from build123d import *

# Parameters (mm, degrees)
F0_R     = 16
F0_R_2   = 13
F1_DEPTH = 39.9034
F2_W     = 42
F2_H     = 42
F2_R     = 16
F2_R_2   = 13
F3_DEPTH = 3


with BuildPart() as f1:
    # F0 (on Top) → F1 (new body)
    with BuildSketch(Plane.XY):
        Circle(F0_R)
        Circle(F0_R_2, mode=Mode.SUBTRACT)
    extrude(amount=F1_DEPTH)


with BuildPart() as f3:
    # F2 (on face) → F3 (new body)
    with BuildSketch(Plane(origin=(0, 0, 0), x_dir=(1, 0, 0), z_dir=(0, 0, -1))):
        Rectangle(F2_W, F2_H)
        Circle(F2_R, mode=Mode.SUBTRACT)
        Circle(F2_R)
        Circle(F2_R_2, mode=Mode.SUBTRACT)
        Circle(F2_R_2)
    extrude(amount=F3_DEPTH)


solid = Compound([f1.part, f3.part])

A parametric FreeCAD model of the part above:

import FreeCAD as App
import Part
import Sketcher

V = App.Vector


def add_polygon(sketch, points):
    """Adds a closed chain of lines whose ends are joined by coincident constraints."""
    first, n = sketch.GeometryCount, len(points)
    for a, b in zip(points, points[1:] + points[:1]):
        sketch.addGeometry(Part.LineSegment(App.Vector(*a, 0), App.Vector(*b, 0)), False)
    for i in range(n):
        sketch.addConstraint(Sketcher.Constraint("Coincident", first + i, 2, first + (i + 1) % n, 1))

doc = App.newDocument("Part")
params = doc.addObject("Spreadsheet::Sheet", "Params")
for row, (alias, value) in enumerate([
    ("sketch1_diameter", "32 mm"),
    ("sketch1_diameter2", "26 mm"),
    ("pad1_length", "39.9034 mm"),
    ("sketch2_width", "42 mm"),
    ("pad2_length", "3 mm"),
], start=1):
    params.set(f"A{row}", alias)
    params.set(f"B{row}", "=" + value)
    params.setAlias(f"B{row}", alias)

body = doc.addObject("PartDesign::Body", "Body")

sketch1 = body.newObject("Sketcher::SketchObject", "Sketch")
sketch1.AttachmentSupport = (doc.getObject("XY_Plane"), [""])
sketch1.MapMode = "FlatFace"
sketch1.addGeometry([
    Part.Circle(V(0, 0, 0), V(0, 0, 1), 16),
    Part.Circle(V(0, 0, 0), V(0, 0, 1), 13),
], False)
sketch1.addConstraint([
    Sketcher.Constraint("Coincident", 0, 3, -1, 1),
    Sketcher.Constraint("Coincident", 1, 3, -1, 1),
    Sketcher.Constraint("Diameter", 0, 32.0),
    Sketcher.Constraint("Diameter", 1, 26.0),
])
sketch1.setExpression("Constraints[2]", "Params.sketch1_diameter")
sketch1.setExpression("Constraints[3]", "Params.sketch1_diameter2")
pad1 = body.newObject("PartDesign::Pad", "Pad")
pad1.Profile = sketch1
pad1.setExpression("Length", "Params.pad1_length")
body2 = doc.addObject("PartDesign::Body", "Body001")

sketch2 = body2.newObject("Sketcher::SketchObject", "Sketch001")
sketch2.AttachmentSupport = (doc.getObject("XY_Plane001"), [""])
sketch2.MapMode = "FlatFace"
add_polygon(sketch2, [(-21, -21), (-21, 21), (21, 21), (21, -21)])
sketch2.addConstraint([
    Sketcher.Constraint("Vertical", 0),
    Sketcher.Constraint("Horizontal", 1),
    Sketcher.Constraint("Vertical", 2),
    Sketcher.Constraint("Horizontal", 3),
    Sketcher.Constraint("Symmetric", 0, 2, 2, 2, -1, 1),
    Sketcher.Constraint("Equal", 3, 0),
    Sketcher.Constraint("DistanceX", 1, 1, 1, 2, 42.0),
])
sketch2.setExpression("Constraints[10]", "Params.sketch2_width")
pad2 = body2.newObject("PartDesign::Pad", "Pad001")
pad2.Profile = sketch2
pad2.setExpression("Length", "Params.pad2_length")
pad2.Reversed = True

doc.recompute()
